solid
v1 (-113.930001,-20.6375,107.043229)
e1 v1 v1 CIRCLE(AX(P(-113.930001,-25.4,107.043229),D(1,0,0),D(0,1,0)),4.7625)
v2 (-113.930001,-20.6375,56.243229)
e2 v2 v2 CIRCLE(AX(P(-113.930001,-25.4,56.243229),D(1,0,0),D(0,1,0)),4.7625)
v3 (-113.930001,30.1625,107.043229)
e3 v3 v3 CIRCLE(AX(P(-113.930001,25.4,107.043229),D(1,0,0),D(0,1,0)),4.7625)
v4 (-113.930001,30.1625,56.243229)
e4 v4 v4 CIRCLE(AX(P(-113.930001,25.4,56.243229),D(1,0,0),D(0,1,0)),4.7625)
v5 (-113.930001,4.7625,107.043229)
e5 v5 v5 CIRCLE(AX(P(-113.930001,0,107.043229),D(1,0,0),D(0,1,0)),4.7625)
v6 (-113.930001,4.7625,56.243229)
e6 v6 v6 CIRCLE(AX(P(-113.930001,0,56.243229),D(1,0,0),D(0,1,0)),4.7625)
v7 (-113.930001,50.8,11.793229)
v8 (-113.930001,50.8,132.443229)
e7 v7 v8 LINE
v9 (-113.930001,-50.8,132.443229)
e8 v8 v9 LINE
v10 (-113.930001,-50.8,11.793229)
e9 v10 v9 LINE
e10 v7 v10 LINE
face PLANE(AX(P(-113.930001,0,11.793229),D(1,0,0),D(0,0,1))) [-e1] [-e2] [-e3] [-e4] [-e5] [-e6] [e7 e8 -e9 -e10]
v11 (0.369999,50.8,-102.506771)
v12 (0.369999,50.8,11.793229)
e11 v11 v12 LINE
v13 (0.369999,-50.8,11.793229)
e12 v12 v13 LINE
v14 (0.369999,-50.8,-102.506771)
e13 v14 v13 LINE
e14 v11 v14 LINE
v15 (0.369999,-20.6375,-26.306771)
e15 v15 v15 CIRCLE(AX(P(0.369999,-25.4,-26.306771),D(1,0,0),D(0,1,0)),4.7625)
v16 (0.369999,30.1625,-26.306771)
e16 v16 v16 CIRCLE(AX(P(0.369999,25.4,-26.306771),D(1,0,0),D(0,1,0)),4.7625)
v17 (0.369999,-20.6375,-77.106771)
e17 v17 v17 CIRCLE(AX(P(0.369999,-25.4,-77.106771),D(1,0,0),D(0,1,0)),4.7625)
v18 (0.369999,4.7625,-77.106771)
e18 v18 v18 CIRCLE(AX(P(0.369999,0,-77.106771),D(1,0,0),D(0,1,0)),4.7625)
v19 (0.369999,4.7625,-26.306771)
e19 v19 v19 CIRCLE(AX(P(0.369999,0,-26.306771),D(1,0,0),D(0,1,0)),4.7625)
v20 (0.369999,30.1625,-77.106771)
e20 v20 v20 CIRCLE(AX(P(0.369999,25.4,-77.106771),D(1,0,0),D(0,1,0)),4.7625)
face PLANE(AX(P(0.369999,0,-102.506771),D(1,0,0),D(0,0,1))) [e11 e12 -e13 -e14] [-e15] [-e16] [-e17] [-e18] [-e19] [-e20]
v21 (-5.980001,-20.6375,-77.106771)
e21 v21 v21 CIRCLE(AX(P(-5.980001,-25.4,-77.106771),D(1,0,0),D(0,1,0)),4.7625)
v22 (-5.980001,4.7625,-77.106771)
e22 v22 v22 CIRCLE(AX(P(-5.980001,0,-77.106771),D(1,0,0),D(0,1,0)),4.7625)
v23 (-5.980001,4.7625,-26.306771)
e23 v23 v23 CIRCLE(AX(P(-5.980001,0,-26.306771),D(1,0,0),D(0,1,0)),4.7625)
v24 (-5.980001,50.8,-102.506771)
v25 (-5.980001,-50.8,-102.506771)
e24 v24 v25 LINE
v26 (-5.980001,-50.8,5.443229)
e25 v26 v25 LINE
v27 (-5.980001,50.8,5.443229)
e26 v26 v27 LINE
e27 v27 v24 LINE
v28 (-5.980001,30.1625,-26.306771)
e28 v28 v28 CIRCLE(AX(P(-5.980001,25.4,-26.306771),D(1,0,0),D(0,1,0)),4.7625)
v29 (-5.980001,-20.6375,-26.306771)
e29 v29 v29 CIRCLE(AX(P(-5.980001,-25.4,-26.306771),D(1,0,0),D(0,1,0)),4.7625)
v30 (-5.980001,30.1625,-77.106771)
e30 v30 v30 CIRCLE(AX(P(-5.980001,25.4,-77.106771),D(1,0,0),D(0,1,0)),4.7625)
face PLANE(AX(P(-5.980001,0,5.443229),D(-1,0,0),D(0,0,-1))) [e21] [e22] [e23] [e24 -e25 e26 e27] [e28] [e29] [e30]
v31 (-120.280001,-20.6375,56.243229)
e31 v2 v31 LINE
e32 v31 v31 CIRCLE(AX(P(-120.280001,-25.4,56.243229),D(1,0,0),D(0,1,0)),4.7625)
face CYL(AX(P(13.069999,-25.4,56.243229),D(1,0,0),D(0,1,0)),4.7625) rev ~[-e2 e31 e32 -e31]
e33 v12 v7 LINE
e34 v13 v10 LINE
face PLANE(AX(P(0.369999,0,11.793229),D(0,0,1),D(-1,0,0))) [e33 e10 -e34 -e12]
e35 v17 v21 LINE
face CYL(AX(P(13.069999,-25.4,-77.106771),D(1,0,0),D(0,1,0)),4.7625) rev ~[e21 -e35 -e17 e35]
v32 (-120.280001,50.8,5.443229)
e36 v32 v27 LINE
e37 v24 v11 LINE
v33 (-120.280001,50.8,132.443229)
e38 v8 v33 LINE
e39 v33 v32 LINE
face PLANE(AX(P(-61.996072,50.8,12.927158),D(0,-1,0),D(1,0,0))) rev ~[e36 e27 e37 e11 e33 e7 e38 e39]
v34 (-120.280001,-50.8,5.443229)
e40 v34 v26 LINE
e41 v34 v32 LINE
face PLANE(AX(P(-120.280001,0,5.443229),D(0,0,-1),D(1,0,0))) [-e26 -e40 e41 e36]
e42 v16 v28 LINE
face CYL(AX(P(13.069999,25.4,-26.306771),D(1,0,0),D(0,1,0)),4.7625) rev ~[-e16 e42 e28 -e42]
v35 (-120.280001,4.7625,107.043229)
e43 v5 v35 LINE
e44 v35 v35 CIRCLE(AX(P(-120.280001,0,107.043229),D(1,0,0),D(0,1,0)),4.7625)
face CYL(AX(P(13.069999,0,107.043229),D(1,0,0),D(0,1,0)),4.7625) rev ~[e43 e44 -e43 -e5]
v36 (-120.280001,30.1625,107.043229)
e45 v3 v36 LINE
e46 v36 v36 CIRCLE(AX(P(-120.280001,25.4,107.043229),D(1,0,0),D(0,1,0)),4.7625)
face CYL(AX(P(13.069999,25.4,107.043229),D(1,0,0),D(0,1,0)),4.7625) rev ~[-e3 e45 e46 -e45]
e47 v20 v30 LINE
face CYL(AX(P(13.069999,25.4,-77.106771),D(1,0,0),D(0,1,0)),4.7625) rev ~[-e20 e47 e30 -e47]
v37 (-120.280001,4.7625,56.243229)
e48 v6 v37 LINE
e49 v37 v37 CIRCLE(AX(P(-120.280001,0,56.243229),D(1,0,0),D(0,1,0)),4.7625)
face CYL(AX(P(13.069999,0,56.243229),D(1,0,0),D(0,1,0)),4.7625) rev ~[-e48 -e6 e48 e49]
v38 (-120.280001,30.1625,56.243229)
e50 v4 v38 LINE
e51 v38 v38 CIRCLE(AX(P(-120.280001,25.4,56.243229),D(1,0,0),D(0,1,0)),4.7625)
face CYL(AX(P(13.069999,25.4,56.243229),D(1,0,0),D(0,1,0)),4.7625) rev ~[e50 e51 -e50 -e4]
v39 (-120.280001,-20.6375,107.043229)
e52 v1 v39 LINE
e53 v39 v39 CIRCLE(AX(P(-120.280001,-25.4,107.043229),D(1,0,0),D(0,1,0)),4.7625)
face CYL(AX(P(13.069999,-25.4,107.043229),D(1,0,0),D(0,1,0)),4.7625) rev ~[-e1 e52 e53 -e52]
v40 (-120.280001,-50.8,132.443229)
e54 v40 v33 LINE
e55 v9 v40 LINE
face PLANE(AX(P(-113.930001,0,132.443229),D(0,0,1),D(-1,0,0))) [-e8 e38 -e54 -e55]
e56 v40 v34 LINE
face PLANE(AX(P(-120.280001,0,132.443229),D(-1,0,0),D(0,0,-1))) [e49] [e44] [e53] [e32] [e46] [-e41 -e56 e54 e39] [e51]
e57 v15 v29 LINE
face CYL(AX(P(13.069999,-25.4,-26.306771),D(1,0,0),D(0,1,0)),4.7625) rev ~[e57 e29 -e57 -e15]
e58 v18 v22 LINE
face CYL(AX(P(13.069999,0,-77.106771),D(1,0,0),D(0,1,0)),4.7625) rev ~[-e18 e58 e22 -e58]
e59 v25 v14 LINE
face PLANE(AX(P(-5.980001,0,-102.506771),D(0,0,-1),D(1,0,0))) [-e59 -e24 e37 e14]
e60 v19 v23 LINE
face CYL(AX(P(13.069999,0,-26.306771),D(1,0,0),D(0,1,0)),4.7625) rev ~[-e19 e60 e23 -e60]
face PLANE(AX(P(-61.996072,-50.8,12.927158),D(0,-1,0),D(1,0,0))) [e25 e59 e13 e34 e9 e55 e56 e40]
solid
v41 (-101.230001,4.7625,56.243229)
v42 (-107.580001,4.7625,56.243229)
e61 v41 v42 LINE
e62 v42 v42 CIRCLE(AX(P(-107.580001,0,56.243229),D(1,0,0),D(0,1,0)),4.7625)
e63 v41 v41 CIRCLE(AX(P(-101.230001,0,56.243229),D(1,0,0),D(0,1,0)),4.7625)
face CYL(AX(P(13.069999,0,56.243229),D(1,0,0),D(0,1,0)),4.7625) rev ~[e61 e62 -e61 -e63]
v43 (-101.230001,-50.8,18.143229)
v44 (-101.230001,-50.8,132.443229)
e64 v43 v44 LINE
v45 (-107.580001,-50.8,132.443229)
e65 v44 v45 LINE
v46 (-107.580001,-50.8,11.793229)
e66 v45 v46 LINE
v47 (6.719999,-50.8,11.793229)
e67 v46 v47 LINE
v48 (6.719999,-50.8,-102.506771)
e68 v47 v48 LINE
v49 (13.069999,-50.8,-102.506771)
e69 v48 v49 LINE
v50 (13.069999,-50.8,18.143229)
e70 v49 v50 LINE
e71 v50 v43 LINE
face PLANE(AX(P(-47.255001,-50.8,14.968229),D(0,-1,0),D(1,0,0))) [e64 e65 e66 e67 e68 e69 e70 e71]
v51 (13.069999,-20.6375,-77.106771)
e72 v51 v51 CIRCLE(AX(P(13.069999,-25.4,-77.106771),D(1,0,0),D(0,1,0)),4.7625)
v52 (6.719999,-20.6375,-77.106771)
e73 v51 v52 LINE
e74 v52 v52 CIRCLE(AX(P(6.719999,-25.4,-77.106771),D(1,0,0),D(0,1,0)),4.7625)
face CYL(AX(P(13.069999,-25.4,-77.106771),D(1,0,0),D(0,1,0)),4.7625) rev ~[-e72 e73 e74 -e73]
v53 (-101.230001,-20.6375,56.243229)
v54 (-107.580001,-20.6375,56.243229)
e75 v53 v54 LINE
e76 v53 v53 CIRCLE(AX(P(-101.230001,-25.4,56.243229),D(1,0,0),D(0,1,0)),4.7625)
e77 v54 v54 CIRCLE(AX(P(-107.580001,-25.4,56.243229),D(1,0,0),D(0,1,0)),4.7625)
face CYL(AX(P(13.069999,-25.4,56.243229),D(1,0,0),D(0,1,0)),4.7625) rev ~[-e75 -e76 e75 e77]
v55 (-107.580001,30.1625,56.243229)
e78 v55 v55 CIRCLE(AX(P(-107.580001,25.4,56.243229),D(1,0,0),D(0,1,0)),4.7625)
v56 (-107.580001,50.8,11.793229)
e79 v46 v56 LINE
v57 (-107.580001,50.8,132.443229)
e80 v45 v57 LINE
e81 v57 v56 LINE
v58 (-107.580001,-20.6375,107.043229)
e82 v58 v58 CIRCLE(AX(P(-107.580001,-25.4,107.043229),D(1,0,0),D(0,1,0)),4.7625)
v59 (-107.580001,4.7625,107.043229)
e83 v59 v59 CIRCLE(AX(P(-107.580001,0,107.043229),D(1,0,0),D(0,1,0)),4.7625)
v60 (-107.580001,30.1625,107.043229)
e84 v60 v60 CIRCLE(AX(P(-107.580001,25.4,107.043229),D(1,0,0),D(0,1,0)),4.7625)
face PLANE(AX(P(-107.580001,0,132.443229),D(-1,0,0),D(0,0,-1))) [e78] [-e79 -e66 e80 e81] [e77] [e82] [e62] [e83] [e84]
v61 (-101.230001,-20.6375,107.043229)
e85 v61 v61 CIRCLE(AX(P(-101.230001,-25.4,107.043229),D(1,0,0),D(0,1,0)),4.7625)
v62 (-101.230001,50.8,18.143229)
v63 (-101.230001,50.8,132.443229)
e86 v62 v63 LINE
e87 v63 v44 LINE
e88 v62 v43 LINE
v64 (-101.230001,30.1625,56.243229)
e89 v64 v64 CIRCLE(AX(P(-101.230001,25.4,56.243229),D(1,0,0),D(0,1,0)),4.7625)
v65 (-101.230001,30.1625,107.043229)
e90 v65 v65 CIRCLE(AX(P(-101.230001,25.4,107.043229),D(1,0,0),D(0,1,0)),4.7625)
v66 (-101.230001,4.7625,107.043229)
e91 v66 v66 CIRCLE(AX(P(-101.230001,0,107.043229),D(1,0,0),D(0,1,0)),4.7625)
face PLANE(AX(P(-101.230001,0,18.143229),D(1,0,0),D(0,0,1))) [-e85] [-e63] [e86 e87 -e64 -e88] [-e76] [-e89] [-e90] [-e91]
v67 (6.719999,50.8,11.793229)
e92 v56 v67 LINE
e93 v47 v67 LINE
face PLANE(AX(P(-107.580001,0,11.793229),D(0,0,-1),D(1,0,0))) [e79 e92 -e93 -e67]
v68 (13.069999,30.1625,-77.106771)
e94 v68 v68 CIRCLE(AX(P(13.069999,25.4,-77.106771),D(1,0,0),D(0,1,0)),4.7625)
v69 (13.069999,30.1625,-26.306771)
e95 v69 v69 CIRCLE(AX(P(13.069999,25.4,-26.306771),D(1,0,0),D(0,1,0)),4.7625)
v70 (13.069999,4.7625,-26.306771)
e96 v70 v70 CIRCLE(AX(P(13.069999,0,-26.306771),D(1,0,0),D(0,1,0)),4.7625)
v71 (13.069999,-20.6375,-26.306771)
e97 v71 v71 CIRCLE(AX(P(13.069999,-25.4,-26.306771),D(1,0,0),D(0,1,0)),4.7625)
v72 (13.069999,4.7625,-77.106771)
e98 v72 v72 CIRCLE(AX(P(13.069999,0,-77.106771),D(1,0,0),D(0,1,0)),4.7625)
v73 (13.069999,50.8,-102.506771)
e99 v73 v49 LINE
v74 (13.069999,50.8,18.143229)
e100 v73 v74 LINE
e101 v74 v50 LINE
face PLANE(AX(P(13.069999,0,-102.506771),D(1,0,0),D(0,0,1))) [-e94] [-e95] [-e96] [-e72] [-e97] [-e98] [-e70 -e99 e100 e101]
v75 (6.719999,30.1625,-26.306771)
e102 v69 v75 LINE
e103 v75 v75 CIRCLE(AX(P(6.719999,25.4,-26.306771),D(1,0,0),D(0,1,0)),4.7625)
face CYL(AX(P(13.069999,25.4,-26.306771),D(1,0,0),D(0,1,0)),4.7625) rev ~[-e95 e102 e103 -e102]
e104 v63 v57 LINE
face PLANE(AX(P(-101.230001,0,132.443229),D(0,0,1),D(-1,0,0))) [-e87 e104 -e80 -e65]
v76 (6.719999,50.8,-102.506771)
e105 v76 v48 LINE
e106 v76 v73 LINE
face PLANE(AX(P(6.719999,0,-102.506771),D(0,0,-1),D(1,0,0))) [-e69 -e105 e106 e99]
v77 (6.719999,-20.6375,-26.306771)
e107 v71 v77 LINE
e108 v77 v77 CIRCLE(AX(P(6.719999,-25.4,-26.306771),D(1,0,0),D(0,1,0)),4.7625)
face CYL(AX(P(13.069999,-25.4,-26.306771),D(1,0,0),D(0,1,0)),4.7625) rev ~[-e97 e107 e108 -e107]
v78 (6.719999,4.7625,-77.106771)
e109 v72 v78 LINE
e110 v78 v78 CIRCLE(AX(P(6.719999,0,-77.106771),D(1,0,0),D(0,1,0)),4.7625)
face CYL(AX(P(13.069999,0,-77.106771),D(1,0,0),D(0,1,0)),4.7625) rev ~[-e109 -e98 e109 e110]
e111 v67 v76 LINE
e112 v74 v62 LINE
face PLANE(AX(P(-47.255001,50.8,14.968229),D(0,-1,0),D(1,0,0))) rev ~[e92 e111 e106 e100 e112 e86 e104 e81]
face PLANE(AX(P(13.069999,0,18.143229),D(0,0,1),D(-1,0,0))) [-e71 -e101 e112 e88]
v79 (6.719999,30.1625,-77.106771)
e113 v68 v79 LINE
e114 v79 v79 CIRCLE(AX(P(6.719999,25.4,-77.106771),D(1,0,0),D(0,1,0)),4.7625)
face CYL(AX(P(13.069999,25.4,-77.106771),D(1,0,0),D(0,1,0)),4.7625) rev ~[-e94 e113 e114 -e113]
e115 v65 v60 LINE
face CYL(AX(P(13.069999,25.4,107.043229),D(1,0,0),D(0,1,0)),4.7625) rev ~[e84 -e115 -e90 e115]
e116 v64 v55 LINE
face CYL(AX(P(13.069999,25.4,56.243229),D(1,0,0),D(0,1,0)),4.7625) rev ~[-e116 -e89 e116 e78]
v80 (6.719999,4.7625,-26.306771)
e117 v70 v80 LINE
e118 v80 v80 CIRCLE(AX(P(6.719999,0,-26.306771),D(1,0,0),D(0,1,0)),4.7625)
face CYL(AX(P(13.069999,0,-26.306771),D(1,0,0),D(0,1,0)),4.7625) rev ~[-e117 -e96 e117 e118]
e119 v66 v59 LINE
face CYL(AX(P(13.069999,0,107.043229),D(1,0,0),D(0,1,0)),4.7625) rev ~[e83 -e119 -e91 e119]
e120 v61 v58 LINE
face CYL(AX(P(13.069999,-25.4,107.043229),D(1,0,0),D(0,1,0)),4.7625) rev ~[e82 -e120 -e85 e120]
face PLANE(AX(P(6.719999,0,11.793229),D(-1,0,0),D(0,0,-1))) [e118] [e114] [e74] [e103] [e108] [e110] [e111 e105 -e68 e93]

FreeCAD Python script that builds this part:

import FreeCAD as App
import Part
import Sketcher
from FreeCAD import Vector
Q = App.Units.Quantity


def add_polygon(sketch, points):
    """Adds a closed chain of lines whose ends are joined by coincident constraints."""
    first, n = sketch.GeometryCount, len(points)
    for a, b in zip(points, points[1:] + points[:1]):
        sketch.addGeometry(Part.LineSegment(App.Vector(*a, 0), App.Vector(*b, 0)), False)
    for i in range(n):
        sketch.addConstraint(Sketcher.Constraint("Coincident", first + i, 2, first + (i + 1) % n, 1))

doc = App.newDocument("Part")
params = doc.addObject("Spreadsheet::Sheet", "Params")
for row, (alias, value) in enumerate([
    ("sketch1_height", "5 in"),
    ("sketch1_width", "4.5 in"),
    ("sketch1_width2", "0.25 in"),
    ("sketch1_height2", "4.25 in"),
    ("pad1_length", "4 in"),
    ("sketch2_width", "4.5 in"),
    ("sketch2_width2", "0.25 in"),
    ("sketch2_height", "4.75 in"),
    ("pad2_length", "4 in"),
    ("sketch3_diameter", "0.375 in"),
    ("pad3_length", "133.351 mm"),
], start=1):
    params.set(f"A{row}", alias)
    params.set(f"B{row}", "=" + value)
    params.setAlias(f"B{row}", alias)

body = doc.addObject("PartDesign::Body", "Body")

sketch1 = body.newObject("Sketcher::SketchObject", "Sketch")
sketch1.AttachmentSupport = (doc.getObject("XZ_Plane"), [""])
sketch1.MapMode = "FlatFace"
add_polygon(sketch1, [(-6, 5), (-6, -103), (0, -103), (0, 12), (-114, 12), (-114, 132), (-120, 132), (-120, 5)])
sketch1.addConstraint(Sketcher.Constraint("Vertical", 0))
sketch1.addConstraint(Sketcher.Constraint("Horizontal", 1))
sketch1.addConstraint(Sketcher.Constraint("Vertical", 2))
sketch1.addConstraint(Sketcher.Constraint("Horizontal", 3))
sketch1.addConstraint(Sketcher.Constraint("Vertical", 4))
sketch1.addConstraint(Sketcher.Constraint("Horizontal", 5))
sketch1.addConstraint(Sketcher.Constraint("Vertical", 6))
sketch1.addConstraint(Sketcher.Constraint("Horizontal", 7))
sketch1.addConstraint(Sketcher.Constraint("Equal", 1, 5))
sketch1.addConstraint(Sketcher.Constraint("Equal", 7, 2))
sketch1.addConstraint(Sketcher.Constraint("DistanceY", 6, 2, 6, 1, Q("5 in")))
sketch1.addConstraint(Sketcher.Constraint("DistanceX", 3, 2, 3, 1, Q("4.5 in")))
sketch1.addConstraint(Sketcher.Constraint("DistanceX", 1, 1, 1, 2, Q("0.25 in")))
sketch1.addConstraint(Sketcher.Constraint("DistanceY", 0, 2, 0, 1, Q("4.25 in")))
sketch1.addConstraint(Sketcher.Constraint("DistanceX", 0, 2, -1, 1, 5.980001))
sketch1.addConstraint(Sketcher.Constraint("DistanceY", 0, 2, -1, 1, 102.506771))
sketch1.setExpression("Constraints[18]", "Params.sketch1_height")
sketch1.setExpression("Constraints[19]", "Params.sketch1_width")
sketch1.setExpression("Constraints[20]", "Params.sketch1_width2")
sketch1.setExpression("Constraints[21]", "Params.sketch1_height2")
pad1 = body.newObject("PartDesign::Pad", "Pad")
pad1.Profile = sketch1
pad1.setExpression("Length", "Params.pad1_length")
pad1.Midplane = True
body2 = doc.addObject("PartDesign::Body", "Body001")

sketch2 = body2.newObject("Sketcher::SketchObject", "Sketch001")
sketch2.AttachmentSupport = (doc.getObject("XZ_Plane001"), [""])
sketch2.MapMode = "FlatFace"
add_polygon(sketch2, [(7, 12), (7, -103), (13, -103), (13, 18), (-101, 18), (-101, 132), (-108, 132), (-108, 12)])
sketch2.addConstraint(Sketcher.Constraint("Vertical", 0))
sketch2.addConstraint(Sketcher.Constraint("Horizontal", 1))
sketch2.addConstraint(Sketcher.Constraint("Vertical", 2))
sketch2.addConstraint(Sketcher.Constraint("Horizontal", 3))
sketch2.addConstraint(Sketcher.Constraint("Vertical", 4))
sketch2.addConstraint(Sketcher.Constraint("Horizontal", 5))
sketch2.addConstraint(Sketcher.Constraint("Vertical", 6))
sketch2.addConstraint(Sketcher.Constraint("Horizontal", 7))
sketch2.addConstraint(Sketcher.Constraint("Equal", 1, 5))
sketch2.addConstraint(Sketcher.Constraint("Equal", 7, 0))
sketch2.addConstraint(Sketcher.Constraint("Equal", 0, 4))
sketch2.addConstraint(Sketcher.Constraint("DistanceX", 3, 2, 3, 1, Q("4.5 in")))
sketch2.addConstraint(Sketcher.Constraint("DistanceX", 1, 1, 1, 2, Q("0.25 in")))
sketch2.addConstraint(Sketcher.Constraint("DistanceY", 2, 1, 2, 2, Q("4.75 in")))
sketch2.addConstraint(Sketcher.Constraint("DistanceX", -1, 1, 0, 2, 6.719999))
sketch2.addConstraint(Sketcher.Constraint("DistanceY", 0, 2, -1, 1, 102.506771))
sketch2.setExpression("Constraints[19]", "Params.sketch2_width")
sketch2.setExpression("Constraints[20]", "Params.sketch2_width2")
sketch2.setExpression("Constraints[21]", "Params.sketch2_height")
pad2 = body2.newObject("PartDesign::Pad", "Pad001")
pad2.Profile = sketch2
pad2.setExpression("Length", "Params.pad2_length")
pad2.Midplane = True
body3 = doc.addObject("PartDesign::Body", "Body002")
body3.AllowCompound = True

sketch3 = body3.newObject("Sketcher::SketchObject", "Sketch002")
sketch3.AttachmentSupport = (doc.getObject("YZ_Plane002"), [""])
sketch3.MapMode = "FlatFace"
sketch3.AttachmentOffset = App.Placement(Vector(0, 0, 13.069999), App.Rotation())
sketch3.addGeometry(Part.Circle(Vector(-25.4, -77.1, 0), Vector(0, 0, 1), 4.8), False)
sketch3.addGeometry(Part.Circle(Vector(-25.4, 107, 0), Vector(0, 0, 1), 4.8), False)
sketch3.addGeometry(Part.Circle(Vector(-25.4, 56.2, 0), Vector(0, 0, 1), 4.8), False)
sketch3.addGeometry(Part.Circle(Vector(0, 107, 0), Vector(0, 0, 1), 4.8), False)
sketch3.addGeometry(Part.Circle(Vector(0, 56.2, 0), Vector(0, 0, 1), 4.8), False)
sketch3.addGeometry(Part.Circle(Vector(25.4, 107, 0), Vector(0, 0, 1), 4.8), False)
sketch3.addGeometry(Part.Circle(Vector(25.4, 56.2, 0), Vector(0, 0, 1), 4.8), False)
sketch3.addGeometry(Part.Circle(Vector(-25.4, -26.3, 0), Vector(0, 0, 1), 4.8), False)
sketch3.addGeometry(Part.Circle(Vector(0, -77.1, 0), Vector(0, 0, 1), 4.8), False)
sketch3.addGeometry(Part.Circle(Vector(0, -26.3, 0), Vector(0, 0, 1), 4.8), False)
sketch3.addGeometry(Part.Circle(Vector(25.4, -77.1, 0), Vector(0, 0, 1), 4.8), False)
sketch3.addGeometry(Part.Circle(Vector(25.4, -26.3, 0), Vector(0, 0, 1), 4.8), False)
sketch3.addConstraint(Sketcher.Constraint("Equal", 0, 1))
sketch3.addConstraint(Sketcher.Constraint("Equal", 1, 2))
sketch3.addConstraint(Sketcher.Constraint("Equal", 2, 3))
sketch3.addConstraint(Sketcher.Constraint("Equal", 3, 4))
sketch3.addConstraint(Sketcher.Constraint("Equal", 4, 5))
sketch3.addConstraint(Sketcher.Constraint("Equal", 5, 6))
sketch3.addConstraint(Sketcher.Constraint("Equal", 6, 7))
sketch3.addConstraint(Sketcher.Constraint("Equal", 7, 8))
sketch3.addConstraint(Sketcher.Constraint("Equal", 8, 9))
sketch3.addConstraint(Sketcher.Constraint("Equal", 9, 10))
sketch3.addConstraint(Sketcher.Constraint("Equal", 10, 11))
sketch3.addConstraint(Sketcher.Constraint("Symmetric", 1, 3, 5, 3, -2))
sketch3.addConstraint(Sketcher.Constraint("Symmetric", 2, 3, 6, 3, -2))
sketch3.addConstraint(Sketcher.Constraint("Symmetric", 0, 3, 10, 3, -2))
sketch3.addConstraint(Sketcher.Constraint("Symmetric", 7, 3, 11, 3, -2))
sketch3.addConstraint(Sketcher.Constraint("PointOnObject", 3, 3, -2))
sketch3.addConstraint(Sketcher.Constraint("PointOnObject", 4, 3, -2))
sketch3.addConstraint(Sketcher.Constraint("PointOnObject", 8, 3, -2))
sketch3.addConstraint(Sketcher.Constraint("PointOnObject", 9, 3, -2))
sketch3.addConstraint(Sketcher.Constraint("Horizontal", 1, 3, 3, 3))
sketch3.addConstraint(Sketcher.Constraint("Horizontal", 2, 3, 4, 3))
sketch3.addConstraint(Sketcher.Constraint("Horizontal", 0, 3, 8, 3))
sketch3.addConstraint(Sketcher.Constraint("Horizontal", 7, 3, 9, 3))
sketch3.addConstraint(Sketcher.Constraint("Vertical", 0, 3, 1, 3))
sketch3.addConstraint(Sketcher.Constraint("Vertical", 1, 3, 2, 3))
sketch3.addConstraint(Sketcher.Constraint("Vertical", 2, 3, 7, 3))
sketch3.addConstraint(Sketcher.Constraint("Diameter", 0, Q("0.375 in")))
sketch3.addConstraint(Sketcher.Constraint("DistanceX", 0, 3, -1, 1, Q("1 in")))
sketch3.addConstraint(Sketcher.Constraint("DistanceY", 2, 3, 1, 3, Q("2 in")))
sketch3.addConstraint(Sketcher.Constraint("DistanceY", 0, 3, 7, 3, Q("2 in")))
sketch3.addConstraint(Sketcher.Constraint("DistanceY", 0, 3, 1, 3, Q("7.25 in")))
sketch3.addConstraint(Sketcher.Constraint("DistanceY", 0, 3, -1, 1, 77.106771))
sketch3.setExpression("Constraints[26]", "Params.sketch3_diameter")
pad3 = body3.newObject("PartDesign::Pad", "Pad002")
pad3.Profile = sketch3
pad3.setExpression("Length", "Params.pad3_length")
pad3.Reversed = True
doc.recompute()

body4 = doc.addObject("PartDesign::Body", "Body003")
body4.BaseFeature = body3
boolean = body.newObject("PartDesign::Boolean", "Boolean")
boolean.Type = "Cut"
boolean.addObjects([body4])
doc.recompute()

boolean2 = body2.newObject("PartDesign::Boolean", "Boolean001")
boolean2.Type = "Cut"
boolean2.addObjects([body3])

doc.recompute()
